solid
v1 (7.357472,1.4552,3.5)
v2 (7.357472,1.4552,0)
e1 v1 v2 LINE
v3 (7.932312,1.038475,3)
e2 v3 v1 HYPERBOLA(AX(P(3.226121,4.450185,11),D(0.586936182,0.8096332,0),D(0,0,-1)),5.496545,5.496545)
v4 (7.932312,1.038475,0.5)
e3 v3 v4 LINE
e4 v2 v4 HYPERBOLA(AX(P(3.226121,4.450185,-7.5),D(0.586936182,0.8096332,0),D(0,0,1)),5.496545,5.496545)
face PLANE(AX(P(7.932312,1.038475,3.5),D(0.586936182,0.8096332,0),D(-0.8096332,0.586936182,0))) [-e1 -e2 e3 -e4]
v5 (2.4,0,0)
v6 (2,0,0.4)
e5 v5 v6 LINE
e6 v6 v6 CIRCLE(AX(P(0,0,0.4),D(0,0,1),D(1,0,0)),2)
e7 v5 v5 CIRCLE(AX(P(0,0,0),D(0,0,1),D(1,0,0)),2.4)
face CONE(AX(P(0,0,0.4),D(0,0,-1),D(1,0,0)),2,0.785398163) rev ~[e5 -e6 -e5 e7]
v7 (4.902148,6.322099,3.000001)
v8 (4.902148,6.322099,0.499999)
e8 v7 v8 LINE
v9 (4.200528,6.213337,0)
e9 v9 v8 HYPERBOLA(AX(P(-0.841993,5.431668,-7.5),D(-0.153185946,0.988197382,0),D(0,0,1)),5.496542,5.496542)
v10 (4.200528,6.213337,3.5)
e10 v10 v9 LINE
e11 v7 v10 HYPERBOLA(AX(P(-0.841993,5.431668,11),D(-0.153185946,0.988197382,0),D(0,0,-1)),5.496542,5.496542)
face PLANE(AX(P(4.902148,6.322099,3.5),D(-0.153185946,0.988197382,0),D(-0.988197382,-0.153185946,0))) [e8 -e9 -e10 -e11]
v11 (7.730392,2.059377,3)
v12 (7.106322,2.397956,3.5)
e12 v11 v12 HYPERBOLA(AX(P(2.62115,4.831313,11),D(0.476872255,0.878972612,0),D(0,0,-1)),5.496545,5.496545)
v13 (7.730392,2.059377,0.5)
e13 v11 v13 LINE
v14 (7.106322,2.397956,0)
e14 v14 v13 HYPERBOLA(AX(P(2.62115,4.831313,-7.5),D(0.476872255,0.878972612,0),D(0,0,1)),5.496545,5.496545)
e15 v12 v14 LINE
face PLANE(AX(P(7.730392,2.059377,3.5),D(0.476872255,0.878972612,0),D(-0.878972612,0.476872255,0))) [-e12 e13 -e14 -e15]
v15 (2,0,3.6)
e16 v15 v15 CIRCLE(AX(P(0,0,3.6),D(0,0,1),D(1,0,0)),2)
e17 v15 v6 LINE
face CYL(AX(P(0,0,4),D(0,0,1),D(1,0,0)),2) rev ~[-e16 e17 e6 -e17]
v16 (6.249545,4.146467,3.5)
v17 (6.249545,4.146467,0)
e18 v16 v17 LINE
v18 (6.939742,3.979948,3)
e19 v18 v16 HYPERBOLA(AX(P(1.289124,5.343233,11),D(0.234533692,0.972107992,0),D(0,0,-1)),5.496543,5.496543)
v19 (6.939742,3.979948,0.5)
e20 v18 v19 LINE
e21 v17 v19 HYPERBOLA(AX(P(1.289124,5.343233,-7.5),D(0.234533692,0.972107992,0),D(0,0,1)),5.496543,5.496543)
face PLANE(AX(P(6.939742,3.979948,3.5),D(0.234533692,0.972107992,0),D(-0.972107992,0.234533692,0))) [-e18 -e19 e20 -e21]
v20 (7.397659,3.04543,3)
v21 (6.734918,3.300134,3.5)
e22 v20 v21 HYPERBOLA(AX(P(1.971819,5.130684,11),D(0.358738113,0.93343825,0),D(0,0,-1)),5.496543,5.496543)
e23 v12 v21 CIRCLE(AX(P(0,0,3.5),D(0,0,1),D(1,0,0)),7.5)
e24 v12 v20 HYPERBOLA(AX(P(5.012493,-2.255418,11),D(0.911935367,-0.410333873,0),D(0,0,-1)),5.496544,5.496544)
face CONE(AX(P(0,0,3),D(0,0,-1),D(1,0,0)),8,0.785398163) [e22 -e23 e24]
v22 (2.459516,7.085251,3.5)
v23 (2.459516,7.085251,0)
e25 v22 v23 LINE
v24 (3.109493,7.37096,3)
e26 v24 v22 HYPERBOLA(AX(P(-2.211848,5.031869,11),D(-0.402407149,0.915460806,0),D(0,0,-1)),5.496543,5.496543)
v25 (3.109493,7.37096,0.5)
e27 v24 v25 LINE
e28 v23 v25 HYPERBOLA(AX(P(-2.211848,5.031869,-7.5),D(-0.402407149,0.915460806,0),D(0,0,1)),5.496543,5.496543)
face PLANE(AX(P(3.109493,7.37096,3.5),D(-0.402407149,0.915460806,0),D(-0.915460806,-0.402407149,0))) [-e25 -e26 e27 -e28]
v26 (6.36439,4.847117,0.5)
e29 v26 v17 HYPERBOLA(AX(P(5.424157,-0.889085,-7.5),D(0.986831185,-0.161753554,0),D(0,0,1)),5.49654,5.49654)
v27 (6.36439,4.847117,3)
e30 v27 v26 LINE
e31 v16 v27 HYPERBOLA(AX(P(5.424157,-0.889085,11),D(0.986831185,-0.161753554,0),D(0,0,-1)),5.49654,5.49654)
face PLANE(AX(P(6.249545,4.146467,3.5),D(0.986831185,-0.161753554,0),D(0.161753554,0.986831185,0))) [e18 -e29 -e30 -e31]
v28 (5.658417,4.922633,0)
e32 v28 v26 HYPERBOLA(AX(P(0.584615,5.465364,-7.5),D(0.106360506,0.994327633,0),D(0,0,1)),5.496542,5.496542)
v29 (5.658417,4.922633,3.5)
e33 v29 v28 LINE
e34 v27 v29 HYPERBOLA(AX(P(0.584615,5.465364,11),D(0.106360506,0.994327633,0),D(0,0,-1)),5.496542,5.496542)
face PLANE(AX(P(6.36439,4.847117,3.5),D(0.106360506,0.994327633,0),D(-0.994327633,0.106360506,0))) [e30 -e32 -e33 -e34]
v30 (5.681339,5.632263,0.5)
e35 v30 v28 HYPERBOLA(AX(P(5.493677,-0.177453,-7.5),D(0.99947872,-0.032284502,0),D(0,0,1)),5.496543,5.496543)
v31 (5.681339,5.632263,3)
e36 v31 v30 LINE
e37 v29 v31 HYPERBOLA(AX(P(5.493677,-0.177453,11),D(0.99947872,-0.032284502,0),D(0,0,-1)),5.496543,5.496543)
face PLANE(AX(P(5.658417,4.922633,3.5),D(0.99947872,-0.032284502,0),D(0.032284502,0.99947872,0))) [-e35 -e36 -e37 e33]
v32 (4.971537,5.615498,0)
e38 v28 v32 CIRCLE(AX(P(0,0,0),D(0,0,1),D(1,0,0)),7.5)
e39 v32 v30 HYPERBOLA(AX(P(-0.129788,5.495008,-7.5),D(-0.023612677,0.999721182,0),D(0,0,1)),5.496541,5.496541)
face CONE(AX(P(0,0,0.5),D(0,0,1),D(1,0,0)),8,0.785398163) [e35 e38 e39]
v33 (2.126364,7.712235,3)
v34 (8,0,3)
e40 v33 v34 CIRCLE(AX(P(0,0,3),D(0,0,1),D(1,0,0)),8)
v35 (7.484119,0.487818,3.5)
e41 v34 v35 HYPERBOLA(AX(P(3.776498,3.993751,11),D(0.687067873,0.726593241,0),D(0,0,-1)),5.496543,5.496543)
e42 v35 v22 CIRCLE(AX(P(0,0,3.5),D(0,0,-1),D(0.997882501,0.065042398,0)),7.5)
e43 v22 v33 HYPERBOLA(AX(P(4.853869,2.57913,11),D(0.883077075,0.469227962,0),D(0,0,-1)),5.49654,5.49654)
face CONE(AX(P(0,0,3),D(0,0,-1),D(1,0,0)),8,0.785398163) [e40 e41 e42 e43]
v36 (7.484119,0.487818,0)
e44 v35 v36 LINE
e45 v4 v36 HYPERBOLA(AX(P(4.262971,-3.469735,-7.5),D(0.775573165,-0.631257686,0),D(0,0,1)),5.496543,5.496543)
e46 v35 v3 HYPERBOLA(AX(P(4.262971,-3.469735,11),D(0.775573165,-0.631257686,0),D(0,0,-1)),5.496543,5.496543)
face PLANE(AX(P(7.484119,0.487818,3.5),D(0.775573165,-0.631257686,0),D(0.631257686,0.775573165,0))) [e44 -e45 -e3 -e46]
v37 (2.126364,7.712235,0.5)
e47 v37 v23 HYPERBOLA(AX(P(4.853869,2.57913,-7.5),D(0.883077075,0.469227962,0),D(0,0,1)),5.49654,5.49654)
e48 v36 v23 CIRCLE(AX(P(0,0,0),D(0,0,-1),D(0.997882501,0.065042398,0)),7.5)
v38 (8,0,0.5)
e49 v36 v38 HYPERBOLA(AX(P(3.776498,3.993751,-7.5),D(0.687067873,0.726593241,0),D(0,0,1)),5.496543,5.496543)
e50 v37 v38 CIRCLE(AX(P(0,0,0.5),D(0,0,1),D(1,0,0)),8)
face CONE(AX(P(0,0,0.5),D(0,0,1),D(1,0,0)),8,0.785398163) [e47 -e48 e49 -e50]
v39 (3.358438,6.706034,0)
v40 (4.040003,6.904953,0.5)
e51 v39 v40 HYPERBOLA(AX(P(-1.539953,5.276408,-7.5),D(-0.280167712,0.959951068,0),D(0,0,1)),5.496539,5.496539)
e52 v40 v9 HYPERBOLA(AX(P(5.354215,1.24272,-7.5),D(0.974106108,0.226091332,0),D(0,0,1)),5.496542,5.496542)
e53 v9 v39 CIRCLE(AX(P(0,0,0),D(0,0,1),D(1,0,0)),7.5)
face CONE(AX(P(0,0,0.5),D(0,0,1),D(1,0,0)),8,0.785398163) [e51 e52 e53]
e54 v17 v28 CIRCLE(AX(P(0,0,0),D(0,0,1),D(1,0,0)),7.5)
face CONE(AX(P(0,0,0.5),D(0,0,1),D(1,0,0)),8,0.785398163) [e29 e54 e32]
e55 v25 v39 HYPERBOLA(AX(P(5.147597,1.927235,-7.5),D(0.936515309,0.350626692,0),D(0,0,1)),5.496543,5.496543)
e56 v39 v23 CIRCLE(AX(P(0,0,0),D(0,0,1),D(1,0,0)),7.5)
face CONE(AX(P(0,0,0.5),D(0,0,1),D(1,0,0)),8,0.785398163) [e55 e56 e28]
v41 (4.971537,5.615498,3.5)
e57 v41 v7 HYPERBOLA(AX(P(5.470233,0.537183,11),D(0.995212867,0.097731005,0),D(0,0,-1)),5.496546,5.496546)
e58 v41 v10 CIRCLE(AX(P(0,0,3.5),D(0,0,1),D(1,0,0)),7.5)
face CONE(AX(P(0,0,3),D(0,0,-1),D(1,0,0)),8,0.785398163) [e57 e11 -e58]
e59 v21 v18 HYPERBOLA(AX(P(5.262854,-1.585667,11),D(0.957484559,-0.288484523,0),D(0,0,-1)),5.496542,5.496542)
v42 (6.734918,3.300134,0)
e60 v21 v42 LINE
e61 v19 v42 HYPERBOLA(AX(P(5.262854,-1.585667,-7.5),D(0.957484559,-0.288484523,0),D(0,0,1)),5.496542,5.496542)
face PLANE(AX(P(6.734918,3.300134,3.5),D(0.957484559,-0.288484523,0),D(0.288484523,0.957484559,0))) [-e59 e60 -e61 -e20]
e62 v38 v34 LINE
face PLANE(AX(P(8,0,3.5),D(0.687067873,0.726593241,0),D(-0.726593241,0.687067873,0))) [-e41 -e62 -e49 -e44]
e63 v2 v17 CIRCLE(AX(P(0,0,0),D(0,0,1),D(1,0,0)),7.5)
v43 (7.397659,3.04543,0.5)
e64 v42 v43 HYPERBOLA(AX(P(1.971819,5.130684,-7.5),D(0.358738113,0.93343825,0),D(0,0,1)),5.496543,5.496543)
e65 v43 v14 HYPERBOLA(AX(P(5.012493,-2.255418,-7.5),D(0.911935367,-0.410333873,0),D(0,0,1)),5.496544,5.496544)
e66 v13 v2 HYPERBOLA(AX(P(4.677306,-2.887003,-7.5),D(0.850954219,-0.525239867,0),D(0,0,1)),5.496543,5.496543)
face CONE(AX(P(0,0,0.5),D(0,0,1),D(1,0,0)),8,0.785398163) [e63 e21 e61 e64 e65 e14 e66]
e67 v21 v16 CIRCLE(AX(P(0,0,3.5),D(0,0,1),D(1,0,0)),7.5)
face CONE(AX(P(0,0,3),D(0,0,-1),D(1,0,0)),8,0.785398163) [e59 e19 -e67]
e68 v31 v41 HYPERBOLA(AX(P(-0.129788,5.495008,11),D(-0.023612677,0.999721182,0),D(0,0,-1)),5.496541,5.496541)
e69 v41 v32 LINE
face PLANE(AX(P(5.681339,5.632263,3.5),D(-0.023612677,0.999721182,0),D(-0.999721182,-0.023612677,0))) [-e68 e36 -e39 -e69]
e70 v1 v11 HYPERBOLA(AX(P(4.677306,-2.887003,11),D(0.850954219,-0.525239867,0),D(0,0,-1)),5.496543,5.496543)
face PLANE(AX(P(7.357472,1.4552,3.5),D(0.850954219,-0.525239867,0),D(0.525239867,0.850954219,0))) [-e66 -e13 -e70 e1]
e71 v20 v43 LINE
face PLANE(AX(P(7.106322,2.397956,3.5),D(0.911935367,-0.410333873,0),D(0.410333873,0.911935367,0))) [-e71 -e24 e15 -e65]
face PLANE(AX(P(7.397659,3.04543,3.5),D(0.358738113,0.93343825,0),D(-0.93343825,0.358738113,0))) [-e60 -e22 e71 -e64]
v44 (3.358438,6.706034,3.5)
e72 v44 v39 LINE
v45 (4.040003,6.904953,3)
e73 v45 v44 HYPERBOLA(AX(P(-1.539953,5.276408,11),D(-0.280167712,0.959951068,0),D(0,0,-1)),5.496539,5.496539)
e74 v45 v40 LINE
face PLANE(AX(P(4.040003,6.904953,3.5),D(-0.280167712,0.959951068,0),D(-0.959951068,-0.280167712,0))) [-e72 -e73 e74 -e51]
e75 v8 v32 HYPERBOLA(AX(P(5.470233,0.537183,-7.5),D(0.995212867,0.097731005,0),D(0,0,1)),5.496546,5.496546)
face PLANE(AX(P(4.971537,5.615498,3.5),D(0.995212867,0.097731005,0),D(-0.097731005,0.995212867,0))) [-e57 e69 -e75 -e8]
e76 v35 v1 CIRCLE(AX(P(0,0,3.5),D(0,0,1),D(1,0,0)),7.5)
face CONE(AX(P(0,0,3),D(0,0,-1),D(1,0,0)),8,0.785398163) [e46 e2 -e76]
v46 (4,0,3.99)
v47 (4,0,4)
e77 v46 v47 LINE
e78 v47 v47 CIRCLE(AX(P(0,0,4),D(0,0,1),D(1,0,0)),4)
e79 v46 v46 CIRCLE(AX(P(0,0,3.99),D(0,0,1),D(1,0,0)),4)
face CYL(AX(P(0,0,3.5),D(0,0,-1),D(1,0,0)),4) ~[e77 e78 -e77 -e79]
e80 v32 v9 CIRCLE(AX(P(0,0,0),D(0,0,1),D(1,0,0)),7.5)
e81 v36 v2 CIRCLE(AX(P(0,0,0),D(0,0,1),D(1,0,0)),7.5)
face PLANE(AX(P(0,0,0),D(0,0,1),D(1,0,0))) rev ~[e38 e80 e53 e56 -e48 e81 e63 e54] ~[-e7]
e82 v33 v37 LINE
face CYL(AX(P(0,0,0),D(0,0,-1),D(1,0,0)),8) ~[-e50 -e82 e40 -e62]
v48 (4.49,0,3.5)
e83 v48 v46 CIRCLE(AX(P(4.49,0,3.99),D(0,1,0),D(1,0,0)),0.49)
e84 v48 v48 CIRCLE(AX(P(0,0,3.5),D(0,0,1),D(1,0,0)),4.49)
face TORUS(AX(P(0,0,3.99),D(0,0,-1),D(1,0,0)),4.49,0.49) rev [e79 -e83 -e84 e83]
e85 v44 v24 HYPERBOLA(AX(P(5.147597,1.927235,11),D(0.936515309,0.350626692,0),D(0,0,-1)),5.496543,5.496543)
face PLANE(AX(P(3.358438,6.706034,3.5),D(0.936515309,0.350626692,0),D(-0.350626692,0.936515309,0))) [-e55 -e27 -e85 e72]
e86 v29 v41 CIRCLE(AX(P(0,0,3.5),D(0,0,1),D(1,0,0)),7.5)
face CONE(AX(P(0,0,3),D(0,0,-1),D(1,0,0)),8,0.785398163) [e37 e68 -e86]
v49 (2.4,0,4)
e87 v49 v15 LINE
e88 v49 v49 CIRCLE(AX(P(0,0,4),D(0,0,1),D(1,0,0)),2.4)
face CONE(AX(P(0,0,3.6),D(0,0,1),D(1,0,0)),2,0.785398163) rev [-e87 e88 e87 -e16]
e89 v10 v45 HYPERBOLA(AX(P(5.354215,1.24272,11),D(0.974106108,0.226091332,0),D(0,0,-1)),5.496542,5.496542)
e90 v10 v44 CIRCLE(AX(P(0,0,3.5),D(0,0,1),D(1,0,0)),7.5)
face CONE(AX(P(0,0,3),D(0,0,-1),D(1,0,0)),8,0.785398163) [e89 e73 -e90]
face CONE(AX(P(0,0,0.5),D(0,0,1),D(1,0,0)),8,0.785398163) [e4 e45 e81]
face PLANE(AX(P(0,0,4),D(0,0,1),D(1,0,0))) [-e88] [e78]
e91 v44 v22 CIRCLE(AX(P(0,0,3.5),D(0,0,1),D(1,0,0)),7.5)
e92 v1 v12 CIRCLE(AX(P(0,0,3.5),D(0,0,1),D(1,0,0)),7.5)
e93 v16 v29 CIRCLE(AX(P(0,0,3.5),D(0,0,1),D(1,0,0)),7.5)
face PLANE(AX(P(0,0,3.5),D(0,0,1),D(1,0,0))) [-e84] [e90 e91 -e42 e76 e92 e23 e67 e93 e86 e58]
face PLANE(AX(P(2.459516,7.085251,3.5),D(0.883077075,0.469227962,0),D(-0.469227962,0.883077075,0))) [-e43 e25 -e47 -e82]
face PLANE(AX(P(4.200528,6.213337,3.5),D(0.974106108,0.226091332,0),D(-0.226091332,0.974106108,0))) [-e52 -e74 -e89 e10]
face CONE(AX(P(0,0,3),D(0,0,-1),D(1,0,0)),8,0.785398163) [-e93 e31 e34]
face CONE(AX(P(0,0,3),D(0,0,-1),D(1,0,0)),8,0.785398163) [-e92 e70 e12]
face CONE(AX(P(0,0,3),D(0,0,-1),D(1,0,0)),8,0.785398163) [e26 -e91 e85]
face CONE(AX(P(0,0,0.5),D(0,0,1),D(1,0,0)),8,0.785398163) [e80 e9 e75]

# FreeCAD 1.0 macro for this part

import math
import FreeCAD as App
import Part
import Sketcher
from FreeCAD import Vector


def edges_at(feature, points):
    """Names of the edges that pass closest to the given points."""
    edges = feature.Shape.Edges
    near = lambda p: min(range(len(edges)), key=lambda i: edges[i].distToShape(Part.Vertex(*p))[0])
    return sorted({f"Edge{near(p) + 1}" for p in points})

doc = App.newDocument("Part")
body = doc.addObject("PartDesign::Body", "Body")

sketch1 = body.newObject("Sketcher::SketchObject", "Sketch")
sketch1.AttachmentSupport = (doc.getObject("XY_Plane"), [""])
sketch1.MapMode = "FlatFace"
sketch1.addGeometry(Part.Circle(Vector(0, 0, 0), Vector(0, 0, 1), 8), False)
sketch1.addConstraint([
    Sketcher.Constraint("Coincident", 0, 3, -1, 1),
    Sketcher.Constraint("Diameter", 0, 16.0),
])
pad1 = body.newObject("PartDesign::Pad", "Pad")
pad1.Profile = sketch1
pad1.Length = 3.5

sketch2 = body.newObject("Sketcher::SketchObject", "Sketch001")
sketch2.AttachmentSupport = (doc.getObject("XY_Plane"), [""])
sketch2.MapMode = "FlatFace"
sketch2.AttachmentOffset = App.Placement(Vector(0, 0, 3.5), App.Rotation())
sketch2.addGeometry(Part.Circle(Vector(0, 0, 0), Vector(0, 0, 1), 4), False)
sketch2.addConstraint([
    Sketcher.Constraint("Coincident", 0, 3, -1, 1),
    Sketcher.Constraint("Diameter", 0, 8.0),
])
pad2 = body.newObject("PartDesign::Pad", "Pad001")
pad2.Profile = sketch2
pad2.Length = 0.5
doc.recompute()

fillet = body.newObject("PartDesign::Fillet", "Fillet")
fillet.Base = (pad2, edges_at(pad2, [(-4, 0, 3.5)]))
fillet.Radius = 0.49

sketch3 = body.newObject("Sketcher::SketchObject", "Sketch002")
sketch3.AttachmentSupport = (doc.getObject("XY_Plane"), [""])
sketch3.MapMode = "FlatFace"
sketch3.AttachmentOffset = App.Placement(Vector(0, 0, 4), App.Rotation())
sketch3.addGeometry(Part.Circle(Vector(0, 0, 0), Vector(0, 0, 1), 2), False)
sketch3.addConstraint([
    Sketcher.Constraint("Coincident", 0, 3, -1, 1),
    Sketcher.Constraint("Diameter", 0, 4.0),
])
pocket1 = body.newObject("PartDesign::Pocket", "Pocket")
pocket1.Profile = sketch3
pocket1.Length = 5
doc.recompute()

chamfer = body.newObject("PartDesign::Chamfer", "Chamfer")
chamfer.Base = (pocket1, edges_at(pocket1, [(-2, 0, 4), (-2, 0, 0)]))
chamfer.Size = 0.4
doc.recompute()

chamfer2 = body.newObject("PartDesign::Chamfer", "Chamfer001")
chamfer2.Base = (chamfer, edges_at(chamfer, [(-8, 0, 0), (-8, 0, 3.5)]))
chamfer2.Size = 0.5

sketch4 = body.newObject("Sketcher::SketchObject", "Sketch003")
sketch4.AttachmentSupport = (doc.getObject("XY_Plane"), [""])
sketch4.MapMode = "FlatFace"
sketch4.AttachmentOffset = App.Placement(Vector(0, 0, 3.5), App.Rotation())
sketch4.addGeometry([
    Part.LineSegment(Vector(7.484119, 0.487818, 0), Vector(8, 0, 0)),
    Part.ArcOfCircle(Part.Circle(Vector(4.087067, 3.112709, 0), Vector(0, 0, 1), 5), math.radians(-38.501986), math.radians(113.087755)),
    Part.LineSegment(Vector(2.126364, 7.712236, 0), Vector(2.459516, 7.085251, 0)),
    Part.LineSegment(Vector(2.459516, 7.085251, 0), Vector(3.109493, 7.37096, 0)),
    Part.LineSegment(Vector(3.109493, 7.37096, 0), Vector(3.358438, 6.706034, 0)),
    Part.LineSegment(Vector(3.358438, 6.706034, 0), Vector(4.040003, 6.904953, 0)),
    Part.LineSegment(Vector(4.040003, 6.904953, 0), Vector(4.200528, 6.213337, 0)),
    Part.LineSegment(Vector(4.200528, 6.213337, 0), Vector(4.902148, 6.322099, 0)),
    Part.LineSegment(Vector(4.902148, 6.322099, 0), Vector(4.971537, 5.615498, 0)),
    Part.LineSegment(Vector(4.971537, 5.615498, 0), Vector(5.681339, 5.632263, 0)),
    Part.LineSegment(Vector(5.681339, 5.632263, 0), Vector(5.658417, 4.922633, 0)),
    Part.LineSegment(Vector(5.658417, 4.922633, 0), Vector(6.36439, 4.847117, 0)),
    Part.LineSegment(Vector(6.36439, 4.847117, 0), Vector(6.249545, 4.146467, 0)),
    Part.LineSegment(Vector(6.249545, 4.146467, 0), Vector(6.939742, 3.979948, 0)),
    Part.LineSegment(Vector(6.939742, 3.979948, 0), Vector(6.734918, 3.300134, 0)),
    Part.LineSegment(Vector(6.734918, 3.300134, 0), Vector(7.397659, 3.04543, 0)),
    Part.LineSegment(Vector(7.397659, 3.04543, 0), Vector(7.106322, 2.397956, 0)),
    Part.LineSegment(Vector(7.106322, 2.397956, 0), Vector(7.730392, 2.059377, 0)),
    Part.LineSegment(Vector(7.730392, 2.059377, 0), Vector(7.357472, 1.4552, 0)),
    Part.LineSegment(Vector(7.357472, 1.4552, 0), Vector(7.932312, 1.038475, 0)),
    Part.LineSegment(Vector(7.932312, 1.038475, 0), Vector(7.484119, 0.487818, 0)),
], False)
sketch4.addConstraint([
    Sketcher.Constraint("Coincident", 0, 2, 1, 1),
    Sketcher.Constraint("Coincident", 1, 2, 2, 1),
    Sketcher.Constraint("Coincident", 2, 2, 3, 1),
    Sketcher.Constraint("Coincident", 3, 2, 4, 1),
    Sketcher.Constraint("Coincident", 4, 2, 5, 1),
    Sketcher.Constraint("Coincident", 5, 2, 6, 1),
    Sketcher.Constraint("Coincident", 6, 2, 7, 1),
    Sketcher.Constraint("Coincident", 7, 2, 8, 1),
    Sketcher.Constraint("Coincident", 8, 2, 9, 1),
    Sketcher.Constraint("Coincident", 9, 2, 10, 1),
    Sketcher.Constraint("Coincident", 10, 2, 11, 1),
    Sketcher.Constraint("Coincident", 11, 2, 12, 1),
    Sketcher.Constraint("Coincident", 12, 2, 13, 1),
    Sketcher.Constraint("Coincident", 13, 2, 14, 1),
    Sketcher.Constraint("Coincident", 14, 2, 15, 1),
    Sketcher.Constraint("Coincident", 15, 2, 16, 1),
    Sketcher.Constraint("Coincident", 16, 2, 17, 1),
    Sketcher.Constraint("Coincident", 17, 2, 18, 1),
    Sketcher.Constraint("Coincident", 18, 2, 19, 1),
    Sketcher.Constraint("Coincident", 19, 2, 20, 1),
    Sketcher.Constraint("Coincident", 20, 2, 0, 1),
    Sketcher.Constraint("PointOnObject", 0, 2, -1),
    Sketcher.Constraint("Equal", 0, 2),
    Sketcher.Constraint("Equal", 2, 3),
    Sketcher.Constraint("Equal", 3, 4),
    Sketcher.Constraint("Equal", 4, 5),
    Sketcher.Constraint("Equal", 5, 6),
    Sketcher.Constraint("Equal", 6, 7),
    Sketcher.Constraint("Equal", 7, 8),
    Sketcher.Constraint("Equal", 8, 9),
    Sketcher.Constraint("Equal", 9, 10),
    Sketcher.Constraint("Equal", 10, 11),
    Sketcher.Constraint("Equal", 11, 12),
    Sketcher.Constraint("Equal", 12, 13),
    Sketcher.Constraint("Equal", 13, 14),
    Sketcher.Constraint("Equal", 14, 15),
    Sketcher.Constraint("Equal", 15, 16),
    Sketcher.Constraint("Equal", 16, 17),
    Sketcher.Constraint("Equal", 17, 18),
    Sketcher.Constraint("Equal", 18, 19),
    Sketcher.Constraint("Equal", 19, 20),
    Sketcher.Constraint("Radius", 1, 5.0),
    Sketcher.Constraint("DistanceX", -1, 1, 0, 2, 8.0),
    Sketcher.Constraint("Distance", 0, 0.71),
    Sketcher.Constraint("DistanceY", -1, 1, 7, 2, 6.322099),
    Sketcher.Constraint("DistanceY", -1, 1, 18, 2, 1.4552),
    Sketcher.Constraint("DistanceY", 4, 2, 1, 2, 1.006202),
    Sketcher.Constraint("DistanceY", 5, 2, 2, 2, 0.180298),
    Sketcher.Constraint("DistanceY", 6, 2, 1, 2, 1.498899),
    Sketcher.Constraint("DistanceY", 8, 2, 7, 2, 0.706601),
    Sketcher.Constraint("DistanceX", 4, 2, 8, 2, 1.613099),
    Sketcher.Constraint("DistanceX", 4, 2, 9, 2, 2.322901),
    Sketcher.Constraint("DistanceX", 10, 2, 14, 2, 1.076501),
    Sketcher.Constraint("DistanceY", 14, 2, 10, 2, 1.622499),
    Sketcher.Constraint("DistanceY", -1, 1, 1, 3, 3.112709),
    Sketcher.Constraint("DistanceY", -1, 1, 2, 2, 7.085251),
    Sketcher.Constraint("DistanceY", -1, 1, 3, 2, 7.37096),
    Sketcher.Constraint("DistanceX", -1, 1, 11, 2, 6.36439),
    Sketcher.Constraint("DistanceX", -1, 1, 14, 2, 6.734918),
    Sketcher.Constraint("DistanceX", -1, 1, 15, 2, 7.397659),
    Sketcher.Constraint("DistanceX", -1, 1, 16, 2, 7.106322),
    Sketcher.Constraint("DistanceX", -1, 1, 18, 2, 7.357472),
    Sketcher.Constraint("DistanceX", -1, 1, 19, 2, 7.932312),
    Sketcher.Constraint("DistanceY", 12, 2, 11, 2, 0.70065),
])
pocket2 = body.newObject("PartDesign::Pocket", "Pocket001")
pocket2.Profile = sketch4
pocket2.Length = 5

doc.recompute()
